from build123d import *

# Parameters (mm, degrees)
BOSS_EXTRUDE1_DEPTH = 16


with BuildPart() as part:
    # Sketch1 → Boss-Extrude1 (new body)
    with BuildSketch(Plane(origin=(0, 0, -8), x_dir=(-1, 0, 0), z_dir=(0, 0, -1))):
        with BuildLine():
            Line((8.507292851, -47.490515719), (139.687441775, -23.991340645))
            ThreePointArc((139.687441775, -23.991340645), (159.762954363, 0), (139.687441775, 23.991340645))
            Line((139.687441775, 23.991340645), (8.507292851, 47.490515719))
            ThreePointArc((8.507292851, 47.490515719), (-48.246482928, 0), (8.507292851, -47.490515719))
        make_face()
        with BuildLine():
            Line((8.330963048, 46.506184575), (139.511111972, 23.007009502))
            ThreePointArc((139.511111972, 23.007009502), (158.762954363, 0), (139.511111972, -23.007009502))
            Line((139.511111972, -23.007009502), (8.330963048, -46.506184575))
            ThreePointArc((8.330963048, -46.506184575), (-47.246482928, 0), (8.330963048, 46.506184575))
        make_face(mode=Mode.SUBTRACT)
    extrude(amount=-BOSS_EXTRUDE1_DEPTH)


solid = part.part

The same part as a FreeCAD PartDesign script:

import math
import FreeCAD as App
import Part
import Sketcher
from FreeCAD import Vector
Q = App.Units.Quantity

doc = App.newDocument("Part")
body = doc.addObject("PartDesign::Body", "Body")

# Sketch on XY plane
sketch1 = body.newObject("Sketcher::SketchObject", "Sketch")
sketch1.AttachmentSupport = (doc.getObject("XY_Plane"), [""])
sketch1.MapMode = "FlatFace"
sketch1.AttachmentOffset = App.Placement(Vector(0, 0, -8), App.Rotation())
sketch1.addGeometry([
    Part.LineSegment(Vector(-9, -47, 0), Vector(-140, -24, 0)),  # 0
    Part.ArcOfCircle(Part.Circle(Vector(-135, 0, 0), Vector(0, 0, 1), 24), math.radians(100), math.radians(260)),  # 1
    Part.LineSegment(Vector(-140, 24, 0), Vector(-9, 47, 0)),  # 2
    Part.ArcOfCircle(Part.Circle(Vector(0, 0, 0), Vector(0, 0, 1), 48), math.radians(-100), math.radians(100)),  # 3
    Part.ArcOfCircle(Part.Circle(Vector(0, 0, 0), Vector(0, 0, 1), 47), math.radians(-100), math.radians(100)),  # 4
    Part.LineSegment(Vector(-8, 47, 0), Vector(-140, 23, 0)),  # 5
    Part.ArcOfCircle(Part.Circle(Vector(-135, 0, 0), Vector(0, 0, 1), 23), math.radians(100), math.radians(260)),  # 6
    Part.LineSegment(Vector(-140, -23, 0), Vector(-8, -47, 0)),  # 7
], False)
sketch1.addConstraint([
    Sketcher.Constraint("Tangent", 0, 2, 1, 2),
    Sketcher.Constraint("Tangent", 1, 1, 2, 1),
    Sketcher.Constraint("Tangent", 2, 2, 3, 2),
    Sketcher.Constraint("Tangent", 3, 1, 0, 1),
    Sketcher.Constraint("Tangent", 4, 2, 5, 1),
    Sketcher.Constraint("Tangent", 5, 2, 6, 1),
    Sketcher.Constraint("Tangent", 6, 2, 7, 1),
    Sketcher.Constraint("Tangent", 7, 2, 4, 1),
    Sketcher.Constraint("Coincident", 3, 3, -1, 1),
    Sketcher.Constraint("Coincident", 4, 3, -1, 1),
    Sketcher.Constraint("Coincident", 6, 3, 1, 3),
    Sketcher.Constraint("PointOnObject", 1, 3, -1),
    Sketcher.Constraint("Parallel", 2, 5),
    Sketcher.Constraint("Radius", 1, Q("24.373241 mm")),
    Sketcher.Constraint("Radius", 6, Q("23.373241 mm")),
    Sketcher.Constraint("Radius", 3, Q("48.246483 mm")),
    Sketcher.Constraint("DistanceX", 5, 2, 1, 3, Q("4.121399 mm")),
])
pad1 = body.newObject("PartDesign::Pad", "Pad")
pad1.Profile = sketch1
pad1.Length = 16

doc.recompute()
